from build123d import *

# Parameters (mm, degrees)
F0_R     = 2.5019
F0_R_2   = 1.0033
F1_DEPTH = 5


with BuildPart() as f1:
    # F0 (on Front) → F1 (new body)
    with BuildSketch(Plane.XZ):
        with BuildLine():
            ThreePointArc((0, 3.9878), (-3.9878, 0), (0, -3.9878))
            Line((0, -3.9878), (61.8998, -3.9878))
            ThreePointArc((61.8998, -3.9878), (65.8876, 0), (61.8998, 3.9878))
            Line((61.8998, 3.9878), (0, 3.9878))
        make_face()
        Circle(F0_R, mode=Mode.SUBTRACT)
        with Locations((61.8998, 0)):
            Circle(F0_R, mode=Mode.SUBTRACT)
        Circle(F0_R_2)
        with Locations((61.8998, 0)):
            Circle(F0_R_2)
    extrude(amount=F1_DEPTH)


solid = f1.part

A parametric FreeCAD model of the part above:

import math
import FreeCAD as App
import Part
import Sketcher
from FreeCAD import Vector
Q = App.Units.Quantity

doc = App.newDocument("Part")
body = doc.addObject("PartDesign::Body", "Body")
body.AllowCompound = True

# Sketch on XZ plane
sketch1 = body.newObject("Sketcher::SketchObject", "Sketch")
sketch1.AttachmentSupport = (doc.getObject("XZ_Plane"), [""])
sketch1.MapMode = "FlatFace"
sketch1.addGeometry([
    Part.ArcOfCircle(Part.Circle(Vector(0, 0, 0), Vector(0, 0, 1), 4), math.radians(90), math.radians(270)),  # 0
    Part.LineSegment(Vector(0, -4, 0), Vector(61.9, -4, 0)),  # 1
    Part.ArcOfCircle(Part.Circle(Vector(61.9, 0, 0), Vector(0, 0, 1), 4), math.radians(-90), math.radians(90)),  # 2
    Part.LineSegment(Vector(61.9, 4, 0), Vector(0, 4, 0)),  # 3
    Part.Circle(Vector(0, 0, 0), Vector(0, 0, 1), 2.5),  # 4
    Part.Circle(Vector(61.9, 0, 0), Vector(0, 0, 1), 2.5),  # 5
    Part.Circle(Vector(0, 0, 0), Vector(0, 0, 1), 1),  # 6
    Part.Circle(Vector(61.9, 0, 0), Vector(0, 0, 1), 1),  # 7
], False)
sketch1.addConstraint([
    Sketcher.Constraint("Tangent", 0, 2, 1, 1),
    Sketcher.Constraint("Tangent", 1, 2, 2, 1),
    Sketcher.Constraint("Tangent", 2, 2, 3, 1),
    Sketcher.Constraint("Tangent", 3, 2, 0, 1),
    Sketcher.Constraint("Horizontal", 1),
    Sketcher.Constraint("Horizontal", 3),
    Sketcher.Constraint("Coincident", 0, 3, -1, 1),
    Sketcher.Constraint("Coincident", 4, 3, -1, 1),
    Sketcher.Constraint("Coincident", 6, 3, -1, 1),
    Sketcher.Constraint("Coincident", 5, 3, 2, 3),
    Sketcher.Constraint("Coincident", 7, 3, 2, 3),
    Sketcher.Constraint("Equal", 4, 5),
    Sketcher.Constraint("Equal", 6, 7),
    Sketcher.Constraint("Diameter", 4, Q("0.197 in")),
    Sketcher.Constraint("Diameter", 6, Q("0.079 in")),
    Sketcher.Constraint("Radius", 0, Q("0.157 in")),
    Sketcher.Constraint("DistanceX", 1, 1, 1, 2, Q("2.437 in")),
])
pad1 = body.newObject("PartDesign::Pad", "Pad")
pad1.Profile = sketch1
pad1.Length = 5

doc.recompute()
